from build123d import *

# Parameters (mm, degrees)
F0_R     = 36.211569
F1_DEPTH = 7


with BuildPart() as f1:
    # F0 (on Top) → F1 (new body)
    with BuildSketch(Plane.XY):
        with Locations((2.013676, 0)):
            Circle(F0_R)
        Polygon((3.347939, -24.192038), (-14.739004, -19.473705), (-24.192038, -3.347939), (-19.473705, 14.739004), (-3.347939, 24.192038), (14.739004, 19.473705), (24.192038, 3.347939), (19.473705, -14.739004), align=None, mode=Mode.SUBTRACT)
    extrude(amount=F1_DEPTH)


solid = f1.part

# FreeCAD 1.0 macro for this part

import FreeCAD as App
import Part
import Sketcher
from FreeCAD import Vector
Q = App.Units.Quantity


def add_polygon(sketch, points):
    """Adds a closed chain of lines whose ends are joined by coincident constraints."""
    first, n = sketch.GeometryCount, len(points)
    for a, b in zip(points, points[1:] + points[:1]):
        sketch.addGeometry(Part.LineSegment(App.Vector(*a, 0), App.Vector(*b, 0)), False)
    for i in range(n):
        sketch.addConstraint(Sketcher.Constraint("Coincident", first + i, 2, first + (i + 1) % n, 1))

doc = App.newDocument("Part")
params = doc.addObject("Spreadsheet::Sheet", "Params")
for row, (alias, value) in enumerate([
    ("pad1_length", "7 mm"),
], start=1):
    params.set(f"A{row}", alias)
    params.set(f"B{row}", "=" + value)
    params.setAlias(f"B{row}", alias)

body = doc.addObject("PartDesign::Body", "Body")

# Sketch on XY plane
sketch1 = body.newObject("Sketcher::SketchObject", "Sketch")
sketch1.AttachmentSupport = (doc.getObject("XY_Plane"), [""])
sketch1.MapMode = "FlatFace"
sketch1.addGeometry(Part.Circle(Vector(2, 0, 0), Vector(0, 0, 1), 36), False)  # 0
add_polygon(sketch1, [(19, -15), (3, -24), (-15, -19), (-24, -3), (-19, 15), (-3, 24), (15, 19), (24, 3)])  # lines 1-8
sketch1.addConstraint([
    Sketcher.Constraint("Symmetric", 1, 2, 5, 2, -1, 1),
    Sketcher.Constraint("Symmetric", 2, 2, 6, 2, -1, 1),
    Sketcher.Constraint("Symmetric", 3, 2, 7, 2, -1, 1),
    Sketcher.Constraint("Symmetric", 4, 2, 8, 2, -1, 1),
    Sketcher.Constraint("PointOnObject", 0, 3, -1),
    Sketcher.Constraint("Perpendicular", 1, 3),
    Sketcher.Constraint("Perpendicular", 2, 4),
    Sketcher.Constraint("Equal", 1, 2),
    Sketcher.Constraint("Equal", 2, 3),
    Sketcher.Constraint("Equal", 3, 4),
    Sketcher.Constraint("Diameter", 0, Q("72.423138 mm")),
    Sketcher.Constraint("DistanceY", 1, 2, 3, 2, Q("20.844099 mm")),
    Sketcher.Constraint("DistanceX", 4, 2, 2, 2, Q("4.734701 mm")),
    Sketcher.Constraint("Distance", 1, Q("18.692249 mm")),
    Sketcher.Constraint("DistanceX", 2, 2, 0, 3, Q("16.75268 mm")),
])
pad1 = body.newObject("PartDesign::Pad", "Pad")
pad1.Profile = sketch1
pad1.setExpression("Length", "Params.pad1_length")

doc.recompute()
